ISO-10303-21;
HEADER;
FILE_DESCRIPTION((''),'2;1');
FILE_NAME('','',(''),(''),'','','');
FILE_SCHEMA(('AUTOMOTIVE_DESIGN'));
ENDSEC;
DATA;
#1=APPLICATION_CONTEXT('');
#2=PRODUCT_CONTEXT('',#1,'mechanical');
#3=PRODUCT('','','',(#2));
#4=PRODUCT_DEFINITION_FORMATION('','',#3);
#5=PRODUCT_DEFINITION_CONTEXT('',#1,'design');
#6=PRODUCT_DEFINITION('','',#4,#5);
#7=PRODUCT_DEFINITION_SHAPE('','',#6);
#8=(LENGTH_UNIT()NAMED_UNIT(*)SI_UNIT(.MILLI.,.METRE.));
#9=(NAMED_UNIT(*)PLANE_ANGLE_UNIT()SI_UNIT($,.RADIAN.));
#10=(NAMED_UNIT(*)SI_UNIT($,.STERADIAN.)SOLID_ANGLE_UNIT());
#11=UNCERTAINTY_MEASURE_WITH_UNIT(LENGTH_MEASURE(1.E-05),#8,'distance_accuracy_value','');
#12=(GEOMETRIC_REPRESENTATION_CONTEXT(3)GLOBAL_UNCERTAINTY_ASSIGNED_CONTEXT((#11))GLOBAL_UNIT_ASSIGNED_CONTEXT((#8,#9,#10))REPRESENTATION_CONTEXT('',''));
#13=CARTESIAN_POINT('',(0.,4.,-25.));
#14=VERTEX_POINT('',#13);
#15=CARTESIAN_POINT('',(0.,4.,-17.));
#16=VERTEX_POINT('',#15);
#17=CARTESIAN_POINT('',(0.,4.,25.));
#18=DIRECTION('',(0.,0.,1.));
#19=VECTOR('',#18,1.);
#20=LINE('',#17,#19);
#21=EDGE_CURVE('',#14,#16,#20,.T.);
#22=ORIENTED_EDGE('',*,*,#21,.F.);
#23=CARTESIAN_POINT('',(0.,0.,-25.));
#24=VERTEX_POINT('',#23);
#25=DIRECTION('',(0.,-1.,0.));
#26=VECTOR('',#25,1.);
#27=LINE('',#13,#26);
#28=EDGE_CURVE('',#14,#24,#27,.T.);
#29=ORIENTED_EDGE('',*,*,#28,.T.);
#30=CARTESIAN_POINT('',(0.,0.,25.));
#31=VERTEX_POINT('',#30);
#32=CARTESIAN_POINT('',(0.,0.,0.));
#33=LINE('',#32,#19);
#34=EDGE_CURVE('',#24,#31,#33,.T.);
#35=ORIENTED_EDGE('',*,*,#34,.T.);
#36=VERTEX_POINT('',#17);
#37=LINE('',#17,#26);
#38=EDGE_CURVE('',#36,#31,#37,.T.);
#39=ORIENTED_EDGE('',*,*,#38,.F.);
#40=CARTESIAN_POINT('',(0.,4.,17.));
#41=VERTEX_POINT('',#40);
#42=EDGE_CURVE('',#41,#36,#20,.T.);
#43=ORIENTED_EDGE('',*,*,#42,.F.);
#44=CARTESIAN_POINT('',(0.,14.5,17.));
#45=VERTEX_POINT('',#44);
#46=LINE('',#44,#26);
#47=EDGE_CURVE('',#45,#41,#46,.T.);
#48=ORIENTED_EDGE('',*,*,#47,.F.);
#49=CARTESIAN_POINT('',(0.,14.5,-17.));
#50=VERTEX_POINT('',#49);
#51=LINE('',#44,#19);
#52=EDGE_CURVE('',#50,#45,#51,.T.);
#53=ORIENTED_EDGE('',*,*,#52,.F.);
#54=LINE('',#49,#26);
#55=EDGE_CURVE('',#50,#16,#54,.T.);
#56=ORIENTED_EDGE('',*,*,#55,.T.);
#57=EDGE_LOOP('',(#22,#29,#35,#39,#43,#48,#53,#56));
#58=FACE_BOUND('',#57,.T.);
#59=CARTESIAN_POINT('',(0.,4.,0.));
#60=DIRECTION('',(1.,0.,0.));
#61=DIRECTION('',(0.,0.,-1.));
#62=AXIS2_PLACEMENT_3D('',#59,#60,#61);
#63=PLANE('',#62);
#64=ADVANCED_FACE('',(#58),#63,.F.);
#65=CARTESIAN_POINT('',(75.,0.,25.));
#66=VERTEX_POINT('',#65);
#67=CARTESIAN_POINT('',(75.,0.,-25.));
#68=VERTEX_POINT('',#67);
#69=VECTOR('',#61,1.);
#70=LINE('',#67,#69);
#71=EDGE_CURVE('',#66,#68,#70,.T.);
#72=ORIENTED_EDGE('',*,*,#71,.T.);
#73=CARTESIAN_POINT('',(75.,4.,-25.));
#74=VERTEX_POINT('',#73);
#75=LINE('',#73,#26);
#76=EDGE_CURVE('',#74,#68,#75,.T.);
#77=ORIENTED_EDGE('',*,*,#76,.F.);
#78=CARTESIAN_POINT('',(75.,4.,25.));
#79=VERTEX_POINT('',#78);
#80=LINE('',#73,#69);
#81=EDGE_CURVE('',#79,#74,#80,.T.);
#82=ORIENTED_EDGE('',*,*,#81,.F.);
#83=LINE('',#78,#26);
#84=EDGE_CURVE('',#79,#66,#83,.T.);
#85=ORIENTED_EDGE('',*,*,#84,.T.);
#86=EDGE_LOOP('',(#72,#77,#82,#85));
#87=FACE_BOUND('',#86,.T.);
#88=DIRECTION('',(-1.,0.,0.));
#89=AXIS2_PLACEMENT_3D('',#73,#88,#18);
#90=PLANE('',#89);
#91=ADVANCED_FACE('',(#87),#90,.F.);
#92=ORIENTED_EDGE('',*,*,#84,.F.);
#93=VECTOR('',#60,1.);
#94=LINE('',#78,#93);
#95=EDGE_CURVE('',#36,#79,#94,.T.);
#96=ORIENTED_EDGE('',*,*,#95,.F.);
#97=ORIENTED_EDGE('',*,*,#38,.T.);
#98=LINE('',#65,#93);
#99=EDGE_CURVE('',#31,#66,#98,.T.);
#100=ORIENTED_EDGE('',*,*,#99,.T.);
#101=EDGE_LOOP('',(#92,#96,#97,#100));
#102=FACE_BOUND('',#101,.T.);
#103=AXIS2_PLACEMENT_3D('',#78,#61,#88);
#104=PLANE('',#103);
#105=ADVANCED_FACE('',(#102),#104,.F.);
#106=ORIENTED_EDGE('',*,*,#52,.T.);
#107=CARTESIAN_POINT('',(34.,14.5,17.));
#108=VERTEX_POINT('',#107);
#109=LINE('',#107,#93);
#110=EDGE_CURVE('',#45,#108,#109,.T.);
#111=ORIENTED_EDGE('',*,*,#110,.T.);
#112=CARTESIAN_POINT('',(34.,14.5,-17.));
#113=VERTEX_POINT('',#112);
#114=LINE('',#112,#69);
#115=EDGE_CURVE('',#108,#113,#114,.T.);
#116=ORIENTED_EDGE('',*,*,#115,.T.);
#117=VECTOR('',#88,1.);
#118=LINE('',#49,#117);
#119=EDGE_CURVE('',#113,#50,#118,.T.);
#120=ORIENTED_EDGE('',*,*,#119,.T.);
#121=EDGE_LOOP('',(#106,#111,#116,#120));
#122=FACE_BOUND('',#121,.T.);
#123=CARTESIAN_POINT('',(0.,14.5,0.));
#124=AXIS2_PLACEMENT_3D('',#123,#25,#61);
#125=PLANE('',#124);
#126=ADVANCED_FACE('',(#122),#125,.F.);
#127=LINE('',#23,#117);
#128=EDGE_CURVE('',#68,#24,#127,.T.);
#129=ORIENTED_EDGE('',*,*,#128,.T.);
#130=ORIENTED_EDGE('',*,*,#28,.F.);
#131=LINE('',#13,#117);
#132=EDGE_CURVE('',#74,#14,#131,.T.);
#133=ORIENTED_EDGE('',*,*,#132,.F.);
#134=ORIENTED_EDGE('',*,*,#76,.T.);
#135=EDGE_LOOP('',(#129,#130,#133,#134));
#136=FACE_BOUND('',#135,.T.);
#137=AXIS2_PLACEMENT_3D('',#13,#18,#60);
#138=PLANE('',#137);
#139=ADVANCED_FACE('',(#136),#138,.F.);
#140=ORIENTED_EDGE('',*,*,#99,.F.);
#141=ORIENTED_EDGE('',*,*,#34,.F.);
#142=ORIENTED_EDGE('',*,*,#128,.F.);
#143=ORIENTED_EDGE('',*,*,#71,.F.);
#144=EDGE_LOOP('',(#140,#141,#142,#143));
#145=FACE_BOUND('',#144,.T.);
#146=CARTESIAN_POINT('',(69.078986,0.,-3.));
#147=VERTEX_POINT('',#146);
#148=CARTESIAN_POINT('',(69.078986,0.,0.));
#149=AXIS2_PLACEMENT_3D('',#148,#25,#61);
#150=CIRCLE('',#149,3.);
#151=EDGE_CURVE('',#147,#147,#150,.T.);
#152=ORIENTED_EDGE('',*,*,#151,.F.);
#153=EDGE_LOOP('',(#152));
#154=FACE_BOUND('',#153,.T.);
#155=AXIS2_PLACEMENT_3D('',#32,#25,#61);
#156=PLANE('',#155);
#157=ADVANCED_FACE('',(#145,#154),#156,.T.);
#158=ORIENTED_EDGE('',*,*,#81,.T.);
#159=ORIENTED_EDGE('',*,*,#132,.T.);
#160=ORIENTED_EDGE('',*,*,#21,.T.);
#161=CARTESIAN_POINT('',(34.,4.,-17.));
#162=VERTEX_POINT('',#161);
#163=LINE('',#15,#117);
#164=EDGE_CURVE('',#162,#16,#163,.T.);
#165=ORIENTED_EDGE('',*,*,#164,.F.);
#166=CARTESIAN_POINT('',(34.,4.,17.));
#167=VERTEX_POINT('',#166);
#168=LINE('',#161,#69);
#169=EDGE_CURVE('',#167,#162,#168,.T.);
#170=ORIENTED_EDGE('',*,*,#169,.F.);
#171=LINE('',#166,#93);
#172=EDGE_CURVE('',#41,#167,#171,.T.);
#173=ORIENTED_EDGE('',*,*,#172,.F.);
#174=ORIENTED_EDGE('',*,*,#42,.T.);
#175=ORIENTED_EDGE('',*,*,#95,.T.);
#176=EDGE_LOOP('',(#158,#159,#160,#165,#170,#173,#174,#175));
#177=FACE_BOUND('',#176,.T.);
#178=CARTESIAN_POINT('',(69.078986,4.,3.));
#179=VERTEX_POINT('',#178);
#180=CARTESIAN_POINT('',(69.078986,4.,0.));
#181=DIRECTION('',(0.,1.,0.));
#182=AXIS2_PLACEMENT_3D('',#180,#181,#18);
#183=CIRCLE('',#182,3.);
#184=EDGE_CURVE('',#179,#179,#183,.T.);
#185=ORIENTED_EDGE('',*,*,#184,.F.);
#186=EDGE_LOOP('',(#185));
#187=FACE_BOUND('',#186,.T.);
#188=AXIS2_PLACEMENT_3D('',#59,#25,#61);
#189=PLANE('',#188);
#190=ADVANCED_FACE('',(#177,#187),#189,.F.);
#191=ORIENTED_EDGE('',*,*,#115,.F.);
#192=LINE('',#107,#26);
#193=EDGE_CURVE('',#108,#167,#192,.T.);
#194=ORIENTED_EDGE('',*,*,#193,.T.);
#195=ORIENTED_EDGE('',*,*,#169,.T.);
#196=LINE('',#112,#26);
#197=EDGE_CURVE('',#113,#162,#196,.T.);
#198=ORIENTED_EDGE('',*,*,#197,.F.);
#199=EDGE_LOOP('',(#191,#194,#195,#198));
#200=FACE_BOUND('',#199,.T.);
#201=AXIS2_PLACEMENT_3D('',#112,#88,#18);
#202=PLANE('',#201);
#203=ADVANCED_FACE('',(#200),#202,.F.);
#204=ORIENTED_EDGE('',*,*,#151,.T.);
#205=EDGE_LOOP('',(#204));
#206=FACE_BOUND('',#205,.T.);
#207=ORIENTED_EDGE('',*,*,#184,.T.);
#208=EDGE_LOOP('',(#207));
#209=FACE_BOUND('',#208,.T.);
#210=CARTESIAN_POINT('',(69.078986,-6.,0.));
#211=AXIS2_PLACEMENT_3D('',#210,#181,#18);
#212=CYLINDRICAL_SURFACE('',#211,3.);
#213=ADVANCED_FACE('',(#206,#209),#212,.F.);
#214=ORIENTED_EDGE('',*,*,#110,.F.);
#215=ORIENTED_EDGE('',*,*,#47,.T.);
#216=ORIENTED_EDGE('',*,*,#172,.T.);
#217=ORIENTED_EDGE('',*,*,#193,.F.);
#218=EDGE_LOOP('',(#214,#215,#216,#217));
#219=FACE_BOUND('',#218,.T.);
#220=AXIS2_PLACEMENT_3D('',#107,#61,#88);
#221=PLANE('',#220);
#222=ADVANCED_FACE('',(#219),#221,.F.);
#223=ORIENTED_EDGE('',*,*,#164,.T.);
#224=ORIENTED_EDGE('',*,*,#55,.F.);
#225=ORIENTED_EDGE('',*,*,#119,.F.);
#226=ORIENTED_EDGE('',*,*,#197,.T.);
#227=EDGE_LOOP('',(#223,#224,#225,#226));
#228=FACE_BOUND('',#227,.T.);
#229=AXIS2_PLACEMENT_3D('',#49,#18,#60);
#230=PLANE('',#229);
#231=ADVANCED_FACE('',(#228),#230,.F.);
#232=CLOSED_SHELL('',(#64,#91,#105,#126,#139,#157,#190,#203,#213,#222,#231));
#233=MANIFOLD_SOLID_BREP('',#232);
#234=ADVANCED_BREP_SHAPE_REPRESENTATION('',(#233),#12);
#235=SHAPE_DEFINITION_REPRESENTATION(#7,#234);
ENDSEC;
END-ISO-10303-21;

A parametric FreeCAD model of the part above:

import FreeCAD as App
import Part
import Sketcher
Q = App.Units.Quantity


def add_polygon(sketch, points):
    """Adds a closed chain of lines whose ends are joined by coincident constraints."""
    first, n = sketch.GeometryCount, len(points)
    for a, b in zip(points, points[1:] + points[:1]):
        sketch.addGeometry(Part.LineSegment(App.Vector(*a, 0), App.Vector(*b, 0)), False)
    for i in range(n):
        sketch.addConstraint(Sketcher.Constraint("Coincident", first + i, 2, first + (i + 1) % n, 1))

doc = App.newDocument("Part")
body = doc.addObject("PartDesign::Body", "Body")

sketch1 = doc.addObject("Sketcher::SketchObject", "Sketch")
body.addObject(sketch1)
sketch1.AttachmentSupport = (doc.XZ_Plane, [""])
sketch1.MapMode = "FlatFace"
add_polygon(sketch1, [(0, -25), (0, 25), (75, 25), (75, -25)])
sketch1.addConstraint([
    Sketcher.Constraint("Vertical", 0),
    Sketcher.Constraint("Horizontal", 1),
    Sketcher.Constraint("Vertical", 2),
    Sketcher.Constraint("Horizontal", 3),
    Sketcher.Constraint("Symmetric", 0, 2, 3, 2, -1, 1),
    Sketcher.Constraint("DistanceX", 1, 1, 1, 2, Q("75 mm")),
    Sketcher.Constraint("DistanceY", 0, 1, 0, 2, Q("50 mm")),
])
pad1 = doc.addObject("PartDesign::Pad", "Pad")
body.addObject(pad1)
pad1.Profile = sketch1
pad1.Length = 4
pad1.Reversed = True

sketch2 = doc.addObject("Sketcher::SketchObject", "Sketch001")
body.addObject(sketch2)
sketch2.AttachmentSupport = (doc.XZ_Plane, [""])
sketch2.MapMode = "FlatFace"
sketch2.AttachmentOffset = App.Placement(App.Vector(0, 0, -4), App.Rotation())
add_polygon(sketch2, [(0, -17), (0, 17), (34, 17), (34, -17)])
sketch2.addConstraint([
    Sketcher.Constraint("Vertical", 0),
    Sketcher.Constraint("Horizontal", 1),
    Sketcher.Constraint("Vertical", 2),
    Sketcher.Constraint("Horizontal", 3),
    Sketcher.Constraint("Symmetric", 0, 2, 3, 2, -1, 1),
    Sketcher.Constraint("Equal", 3, 0),
    Sketcher.Constraint("DistanceX", 1, 1, 1, 2, Q("34 mm")),
])
pad2 = doc.addObject("PartDesign::Pad", "Pad001")
body.addObject(pad2)
pad2.Profile = sketch2
pad2.Length = 10.5
pad2.Reversed = True

sketch3 = doc.addObject("Sketcher::SketchObject", "Sketch002")
body.addObject(sketch3)
sketch3.AttachmentSupport = (doc.XZ_Plane, [""])
sketch3.MapMode = "FlatFace"
sketch3.AttachmentOffset = App.Placement(App.Vector(0, 0, -4), App.Rotation())
sketch3.addGeometry(Part.Circle(App.Vector(69.1, 0, 0), App.Vector(0, 0, 1), 3), False)
sketch3.addConstraint([
    Sketcher.Constraint("PointOnObject", 0, 3, -1),
    Sketcher.Constraint("Diameter", 0, Q("6 mm")),
    Sketcher.Constraint("DistanceX", -1, 1, 0, 3, Q("69.078986 mm")),
])
pocket1 = doc.addObject("PartDesign::Pocket", "Pocket")
body.addObject(pocket1)
pocket1.Profile = sketch3
pocket1.Length = 10
pocket1.Reversed = True

doc.recompute()
